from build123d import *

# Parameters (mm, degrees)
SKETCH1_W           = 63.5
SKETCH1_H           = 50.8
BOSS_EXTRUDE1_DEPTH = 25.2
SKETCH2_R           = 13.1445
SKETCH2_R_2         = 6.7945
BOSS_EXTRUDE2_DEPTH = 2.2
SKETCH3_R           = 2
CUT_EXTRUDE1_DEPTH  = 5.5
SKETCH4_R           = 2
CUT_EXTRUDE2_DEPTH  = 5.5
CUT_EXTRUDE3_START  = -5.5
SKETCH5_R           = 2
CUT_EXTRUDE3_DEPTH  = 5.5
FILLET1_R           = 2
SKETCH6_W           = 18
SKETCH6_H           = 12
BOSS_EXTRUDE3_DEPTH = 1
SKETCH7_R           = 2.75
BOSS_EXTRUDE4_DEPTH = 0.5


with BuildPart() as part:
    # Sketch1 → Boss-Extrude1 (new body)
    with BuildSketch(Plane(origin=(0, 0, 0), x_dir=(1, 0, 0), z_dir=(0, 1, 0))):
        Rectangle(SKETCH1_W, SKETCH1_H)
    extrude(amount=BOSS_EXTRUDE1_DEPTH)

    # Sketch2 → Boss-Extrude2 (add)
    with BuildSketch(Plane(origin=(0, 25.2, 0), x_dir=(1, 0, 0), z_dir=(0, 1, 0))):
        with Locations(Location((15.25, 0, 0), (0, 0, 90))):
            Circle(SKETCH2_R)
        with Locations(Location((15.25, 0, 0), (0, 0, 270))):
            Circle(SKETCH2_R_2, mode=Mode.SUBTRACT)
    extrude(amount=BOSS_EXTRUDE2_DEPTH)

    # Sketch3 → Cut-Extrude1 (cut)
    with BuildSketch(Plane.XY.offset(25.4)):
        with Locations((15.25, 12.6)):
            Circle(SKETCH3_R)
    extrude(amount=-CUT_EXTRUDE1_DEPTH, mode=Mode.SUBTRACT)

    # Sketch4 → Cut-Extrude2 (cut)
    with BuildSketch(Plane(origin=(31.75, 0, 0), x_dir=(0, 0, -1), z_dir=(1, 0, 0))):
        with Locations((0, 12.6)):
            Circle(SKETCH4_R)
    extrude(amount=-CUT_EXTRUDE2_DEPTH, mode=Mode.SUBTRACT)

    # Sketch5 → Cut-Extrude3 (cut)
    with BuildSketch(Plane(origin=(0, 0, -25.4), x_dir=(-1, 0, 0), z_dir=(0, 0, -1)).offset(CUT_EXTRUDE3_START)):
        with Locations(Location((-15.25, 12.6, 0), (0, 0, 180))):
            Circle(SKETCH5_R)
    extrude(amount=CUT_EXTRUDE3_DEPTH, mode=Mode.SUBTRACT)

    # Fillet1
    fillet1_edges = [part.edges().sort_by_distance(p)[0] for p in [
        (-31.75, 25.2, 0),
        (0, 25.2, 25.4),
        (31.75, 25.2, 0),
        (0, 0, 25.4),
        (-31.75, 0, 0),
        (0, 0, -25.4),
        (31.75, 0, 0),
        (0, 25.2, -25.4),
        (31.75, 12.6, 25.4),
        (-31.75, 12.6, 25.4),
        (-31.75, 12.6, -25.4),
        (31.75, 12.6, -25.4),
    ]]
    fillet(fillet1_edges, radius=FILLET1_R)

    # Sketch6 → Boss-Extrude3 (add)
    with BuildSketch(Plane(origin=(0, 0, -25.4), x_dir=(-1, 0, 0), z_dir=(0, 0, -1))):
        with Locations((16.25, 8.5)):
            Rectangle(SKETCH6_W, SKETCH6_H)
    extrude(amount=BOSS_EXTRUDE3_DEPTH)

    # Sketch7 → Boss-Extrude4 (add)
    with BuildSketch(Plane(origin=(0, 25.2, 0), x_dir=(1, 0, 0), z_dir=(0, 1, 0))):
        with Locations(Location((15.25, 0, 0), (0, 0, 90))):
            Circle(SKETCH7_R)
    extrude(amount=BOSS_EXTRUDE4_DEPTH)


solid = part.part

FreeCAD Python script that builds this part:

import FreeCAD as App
import Part
import Sketcher

V = App.Vector
Q = App.Units.Quantity


def edges_at(feature, points):
    """Names of the edges that pass closest to the given points."""
    edges = feature.Shape.Edges
    near = lambda p: min(range(len(edges)), key=lambda i: edges[i].distToShape(Part.Vertex(*p))[0])
    return sorted({f"Edge{near(p) + 1}" for p in points})


def add_polygon(sketch, points):
    """Adds a closed chain of lines whose ends are joined by coincident constraints."""
    first, n = sketch.GeometryCount, len(points)
    for a, b in zip(points, points[1:] + points[:1]):
        sketch.addGeometry(Part.LineSegment(App.Vector(*a, 0), App.Vector(*b, 0)), False)
    for i in range(n):
        sketch.addConstraint(Sketcher.Constraint("Coincident", first + i, 2, first + (i + 1) % n, 1))

doc = App.newDocument("Part")
body = doc.addObject("PartDesign::Body", "Body")

sketch1 = doc.addObject("Sketcher::SketchObject", "Sketch")
body.addObject(sketch1)
sketch1.AttachmentSupport = (doc.XZ_Plane, [""])
sketch1.MapMode = "FlatFace"
add_polygon(sketch1, [(-31.75, -25.4), (-31.75, 25.4), (31.75, 25.4), (31.75, -25.4)])
sketch1.addConstraint([
    Sketcher.Constraint("Vertical", 0),
    Sketcher.Constraint("Horizontal", 1),
    Sketcher.Constraint("Vertical", 2),
    Sketcher.Constraint("Horizontal", 3),
    Sketcher.Constraint("Symmetric", 0, 2, 2, 2, -1, 1),
    Sketcher.Constraint("DistanceX", 1, 1, 1, 2, Q("63.5 mm")),
    Sketcher.Constraint("DistanceY", 0, 1, 0, 2, Q("50.8 mm")),
])
pad1 = doc.addObject("PartDesign::Pad", "Pad")
body.addObject(pad1)
pad1.Profile = sketch1
pad1.Length = 25.2
pad1.Reversed = True

sketch2 = doc.addObject("Sketcher::SketchObject", "Sketch001")
body.addObject(sketch2)
sketch2.AttachmentSupport = (doc.XZ_Plane, [""])
sketch2.MapMode = "FlatFace"
sketch2.AttachmentOffset = App.Placement(V(0, 0, -25.2), App.Rotation())
sketch2.addGeometry([
    Part.Circle(V(15.25, 0, 0), V(0, 0, 1), 13.1445),
    Part.Circle(V(15.25, 0, 0), V(0, 0, 1), 6.7945),
], False)
sketch2.addConstraint([
    Sketcher.Constraint("Coincident", 1, 3, 0, 3),
    Sketcher.Constraint("PointOnObject", 0, 3, -1),
    Sketcher.Constraint("Diameter", 0, Q("26.289 mm")),
    Sketcher.Constraint("Diameter", 1, Q("13.589 mm")),
    Sketcher.Constraint("DistanceX", -1, 1, 0, 3, Q("15.25 mm")),
])
pad2 = doc.addObject("PartDesign::Pad", "Pad001")
body.addObject(pad2)
pad2.Profile = sketch2
pad2.Length = 2.2
pad2.Reversed = True

sketch3 = doc.addObject("Sketcher::SketchObject", "Sketch002")
body.addObject(sketch3)
sketch3.AttachmentSupport = (doc.XY_Plane, [""])
sketch3.MapMode = "FlatFace"
sketch3.AttachmentOffset = App.Placement(V(0, 0, 25.4), App.Rotation())
sketch3.addGeometry(Part.Circle(V(15.25, 12.6, 0), V(0, 0, 1), 2), False)
sketch3.addConstraint([
    Sketcher.Constraint("Diameter", 0, Q("4 mm")),
    Sketcher.Constraint("DistanceY", -1, 1, 0, 3, Q("12.6 mm")),
    Sketcher.Constraint("DistanceX", -1, 1, 0, 3, Q("15.25 mm")),
])
pocket1 = doc.addObject("PartDesign::Pocket", "Pocket")
body.addObject(pocket1)
pocket1.Profile = sketch3
pocket1.Length = 5.5

sketch4 = doc.addObject("Sketcher::SketchObject", "Sketch003")
body.addObject(sketch4)
sketch4.AttachmentSupport = (doc.YZ_Plane, [""])
sketch4.MapMode = "FlatFace"
sketch4.AttachmentOffset = App.Placement(V(0, 0, 31.75), App.Rotation())
sketch4.addGeometry(Part.Circle(V(12.6, 0, 0), V(0, 0, 1), 2), False)
sketch4.addConstraint([
    Sketcher.Constraint("PointOnObject", 0, 3, -1),
    Sketcher.Constraint("Diameter", 0, Q("4 mm")),
    Sketcher.Constraint("DistanceX", -1, 1, 0, 3, Q("12.6 mm")),
])
pocket2 = doc.addObject("PartDesign::Pocket", "Pocket001")
body.addObject(pocket2)
pocket2.Profile = sketch4
pocket2.Length = 5.5

sketch5 = doc.addObject("Sketcher::SketchObject", "Sketch004")
body.addObject(sketch5)
sketch5.AttachmentSupport = (doc.XY_Plane, [""])
sketch5.MapMode = "FlatFace"
sketch5.AttachmentOffset = App.Placement(V(0, 0, -19.9), App.Rotation())
sketch5.addGeometry(Part.Circle(V(15.25, 12.6, 0), V(0, 0, 1), 2), False)
sketch5.addConstraint([
    Sketcher.Constraint("Diameter", 0, Q("4 mm")),
    Sketcher.Constraint("DistanceY", -1, 1, 0, 3, Q("12.6 mm")),
    Sketcher.Constraint("DistanceX", -1, 1, 0, 3, Q("15.25 mm")),
])
pocket3 = doc.addObject("PartDesign::Pocket", "Pocket002")
body.addObject(pocket3)
pocket3.Profile = sketch5
pocket3.Length = 5.5
doc.recompute()

fillet = doc.addObject("PartDesign::Fillet", "Fillet")
body.addObject(fillet)
fillet.Base = (pocket3, edges_at(pocket3, [
    (-31.75, 25.2, 0),
    (0, 25.2, 25.4),
    (31.75, 25.2, 0),
    (0, 0, 25.4),
    (-31.75, 0, 0),
    (0, 0, -25.4),
    (31.75, 0, 0),
    (0, 25.2, -25.4),
    (31.75, 12.6, 25.4),
    (-31.75, 12.6, 25.4),
    (-31.75, 12.6, -25.4),
    (31.75, 12.6, -25.4),
]))
fillet.Radius = 2

sketch6 = doc.addObject("Sketcher::SketchObject", "Sketch005")
body.addObject(sketch6)
sketch6.AttachmentSupport = (doc.XY_Plane, [""])
sketch6.MapMode = "FlatFace"
sketch6.AttachmentOffset = App.Placement(V(0, 0, -25.4), App.Rotation())
add_polygon(sketch6, [(-7.25, 14.5), (-7.25, 2.5), (-25.25, 2.5), (-25.25, 14.5)])
sketch6.addConstraint([
    Sketcher.Constraint("Vertical", 0),
    Sketcher.Constraint("Horizontal", 1),
    Sketcher.Constraint("Vertical", 2),
    Sketcher.Constraint("Horizontal", 3),
    Sketcher.Constraint("DistanceX", 1, 2, 1, 1, Q("18 mm")),
    Sketcher.Constraint("DistanceY", 0, 2, 0, 1, Q("12 mm")),
    Sketcher.Constraint("DistanceY", -1, 1, 0, 2, Q("2.5 mm")),
    Sketcher.Constraint("DistanceX", 0, 2, -1, 1, Q("7.25 mm")),
])
pad3 = doc.addObject("PartDesign::Pad", "Pad002")
body.addObject(pad3)
pad3.Profile = sketch6
pad3.Length = 1
pad3.Reversed = True

sketch7 = doc.addObject("Sketcher::SketchObject", "Sketch006")
body.addObject(sketch7)
sketch7.AttachmentSupport = (doc.XZ_Plane, [""])
sketch7.MapMode = "FlatFace"
sketch7.AttachmentOffset = App.Placement(V(0, 0, -25.2), App.Rotation())
sketch7.addGeometry(Part.Circle(V(15.25, 0, 0), V(0, 0, 1), 2.75), False)
sketch7.addConstraint([
    Sketcher.Constraint("PointOnObject", 0, 3, -1),
    Sketcher.Constraint("Diameter", 0, Q("5.5 mm")),
    Sketcher.Constraint("DistanceX", -1, 1, 0, 3, Q("15.25 mm")),
])
pad4 = doc.addObject("PartDesign::Pad", "Pad003")
body.addObject(pad4)
pad4.Profile = sketch7
pad4.Length = 0.5
pad4.Reversed = True

doc.recompute()
